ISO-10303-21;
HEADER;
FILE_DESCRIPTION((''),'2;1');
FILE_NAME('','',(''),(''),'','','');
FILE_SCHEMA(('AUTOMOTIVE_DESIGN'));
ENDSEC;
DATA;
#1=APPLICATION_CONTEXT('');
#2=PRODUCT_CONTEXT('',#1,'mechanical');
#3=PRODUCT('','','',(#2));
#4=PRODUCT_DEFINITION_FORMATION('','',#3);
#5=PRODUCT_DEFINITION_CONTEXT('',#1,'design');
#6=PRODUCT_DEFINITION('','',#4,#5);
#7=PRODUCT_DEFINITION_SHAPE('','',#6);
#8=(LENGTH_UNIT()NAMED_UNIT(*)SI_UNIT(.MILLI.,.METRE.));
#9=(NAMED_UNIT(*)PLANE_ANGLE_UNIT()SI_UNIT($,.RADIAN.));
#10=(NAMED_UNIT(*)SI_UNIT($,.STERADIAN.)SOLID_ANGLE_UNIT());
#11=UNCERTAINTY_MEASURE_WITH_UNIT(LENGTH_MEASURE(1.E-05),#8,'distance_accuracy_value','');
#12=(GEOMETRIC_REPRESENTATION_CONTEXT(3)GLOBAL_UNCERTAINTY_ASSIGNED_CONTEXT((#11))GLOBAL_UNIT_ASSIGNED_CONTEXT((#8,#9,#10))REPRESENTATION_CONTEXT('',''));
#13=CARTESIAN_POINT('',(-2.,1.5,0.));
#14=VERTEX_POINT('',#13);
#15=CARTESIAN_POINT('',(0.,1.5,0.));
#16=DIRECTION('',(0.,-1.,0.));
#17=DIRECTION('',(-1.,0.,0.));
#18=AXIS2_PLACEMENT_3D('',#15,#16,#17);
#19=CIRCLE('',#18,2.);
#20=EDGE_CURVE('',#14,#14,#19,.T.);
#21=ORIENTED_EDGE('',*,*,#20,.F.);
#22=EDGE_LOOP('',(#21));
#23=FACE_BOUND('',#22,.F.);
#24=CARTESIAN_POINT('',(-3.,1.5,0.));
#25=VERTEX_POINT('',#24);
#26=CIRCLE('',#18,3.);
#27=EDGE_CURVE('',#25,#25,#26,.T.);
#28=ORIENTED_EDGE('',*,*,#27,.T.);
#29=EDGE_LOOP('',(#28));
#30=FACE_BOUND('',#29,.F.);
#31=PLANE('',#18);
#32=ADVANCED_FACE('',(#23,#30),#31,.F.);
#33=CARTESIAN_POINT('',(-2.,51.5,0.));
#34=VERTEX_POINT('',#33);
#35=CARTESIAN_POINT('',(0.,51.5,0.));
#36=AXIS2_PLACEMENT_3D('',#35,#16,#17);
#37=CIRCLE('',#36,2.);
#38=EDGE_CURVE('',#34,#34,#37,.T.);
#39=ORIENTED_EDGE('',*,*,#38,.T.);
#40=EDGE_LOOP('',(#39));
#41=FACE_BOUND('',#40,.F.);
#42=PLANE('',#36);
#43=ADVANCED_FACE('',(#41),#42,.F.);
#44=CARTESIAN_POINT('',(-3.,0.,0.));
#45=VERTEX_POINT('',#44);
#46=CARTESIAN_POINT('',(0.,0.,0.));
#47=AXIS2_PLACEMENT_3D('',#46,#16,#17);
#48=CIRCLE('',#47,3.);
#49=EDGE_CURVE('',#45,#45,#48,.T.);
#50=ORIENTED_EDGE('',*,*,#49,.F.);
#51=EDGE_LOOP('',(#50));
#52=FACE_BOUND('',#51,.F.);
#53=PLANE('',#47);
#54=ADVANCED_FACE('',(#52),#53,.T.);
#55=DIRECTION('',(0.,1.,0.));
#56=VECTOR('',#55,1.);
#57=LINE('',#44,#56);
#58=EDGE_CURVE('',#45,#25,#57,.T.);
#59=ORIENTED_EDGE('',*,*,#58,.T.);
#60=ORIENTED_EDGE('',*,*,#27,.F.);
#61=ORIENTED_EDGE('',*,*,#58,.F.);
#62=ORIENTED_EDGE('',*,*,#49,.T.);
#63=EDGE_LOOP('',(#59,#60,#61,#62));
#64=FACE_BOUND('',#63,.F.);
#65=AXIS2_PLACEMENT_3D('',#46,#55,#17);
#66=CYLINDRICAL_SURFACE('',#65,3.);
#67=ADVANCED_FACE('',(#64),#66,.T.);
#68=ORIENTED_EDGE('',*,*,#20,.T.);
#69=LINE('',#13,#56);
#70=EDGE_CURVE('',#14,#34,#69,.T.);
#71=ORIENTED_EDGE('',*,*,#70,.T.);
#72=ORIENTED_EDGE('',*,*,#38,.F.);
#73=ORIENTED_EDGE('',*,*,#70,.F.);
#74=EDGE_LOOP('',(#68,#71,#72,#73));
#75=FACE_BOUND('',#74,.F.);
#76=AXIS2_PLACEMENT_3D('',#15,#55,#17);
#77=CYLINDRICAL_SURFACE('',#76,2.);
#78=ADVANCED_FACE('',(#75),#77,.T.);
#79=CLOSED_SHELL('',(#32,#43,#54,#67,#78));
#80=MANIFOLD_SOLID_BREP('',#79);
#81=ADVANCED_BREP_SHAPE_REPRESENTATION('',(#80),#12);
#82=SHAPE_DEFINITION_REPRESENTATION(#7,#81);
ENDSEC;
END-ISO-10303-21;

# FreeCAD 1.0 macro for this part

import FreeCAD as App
import Part
import Sketcher
from FreeCAD import Vector
Q = App.Units.Quantity


def add_polygon(sketch, points):
    """Adds a closed chain of lines whose ends are joined by coincident constraints."""
    first, n = sketch.GeometryCount, len(points)
    for a, b in zip(points, points[1:] + points[:1]):
        sketch.addGeometry(Part.LineSegment(App.Vector(*a, 0), App.Vector(*b, 0)), False)
    for i in range(n):
        sketch.addConstraint(Sketcher.Constraint("Coincident", first + i, 2, first + (i + 1) % n, 1))

doc = App.newDocument("Part")
body = doc.addObject("PartDesign::Body", "Body")

sketch1 = body.newObject("Sketcher::SketchObject", "Sketch")
sketch1.AttachmentSupport = (doc.getObject("XY_Plane"), [""])
sketch1.MapMode = "FlatFace"
add_polygon(sketch1, [(-3, 0), (0, 0), (0, 51.5), (-2, 51.5), (-2, 1.5), (-3, 1.5)])
sketch1.addConstraint([
    Sketcher.Constraint("Horizontal", 0),
    Sketcher.Constraint("Vertical", 1),
    Sketcher.Constraint("Horizontal", 2),
    Sketcher.Constraint("Vertical", 3),
    Sketcher.Constraint("Horizontal", 4),
    Sketcher.Constraint("Vertical", 5),
    Sketcher.Constraint("Coincident", 0, 2, -1, 1),
    Sketcher.Constraint("DistanceX", 0, 1, 0, 2, Q("3 mm")),
    Sketcher.Constraint("DistanceX", 2, 2, 2, 1, Q("2 mm")),
    Sketcher.Constraint("DistanceY", 3, 2, 3, 1, Q("50 mm")),
    Sketcher.Constraint("DistanceY", 5, 2, 5, 1, Q("1.5 mm")),
])
revolution = body.newObject("PartDesign::Revolution", "Revolution")
revolution.Profile = sketch1
revolution.ReferenceAxis = (sketch1, ["V_Axis"])
revolution.Angle = 360

doc.recompute()
